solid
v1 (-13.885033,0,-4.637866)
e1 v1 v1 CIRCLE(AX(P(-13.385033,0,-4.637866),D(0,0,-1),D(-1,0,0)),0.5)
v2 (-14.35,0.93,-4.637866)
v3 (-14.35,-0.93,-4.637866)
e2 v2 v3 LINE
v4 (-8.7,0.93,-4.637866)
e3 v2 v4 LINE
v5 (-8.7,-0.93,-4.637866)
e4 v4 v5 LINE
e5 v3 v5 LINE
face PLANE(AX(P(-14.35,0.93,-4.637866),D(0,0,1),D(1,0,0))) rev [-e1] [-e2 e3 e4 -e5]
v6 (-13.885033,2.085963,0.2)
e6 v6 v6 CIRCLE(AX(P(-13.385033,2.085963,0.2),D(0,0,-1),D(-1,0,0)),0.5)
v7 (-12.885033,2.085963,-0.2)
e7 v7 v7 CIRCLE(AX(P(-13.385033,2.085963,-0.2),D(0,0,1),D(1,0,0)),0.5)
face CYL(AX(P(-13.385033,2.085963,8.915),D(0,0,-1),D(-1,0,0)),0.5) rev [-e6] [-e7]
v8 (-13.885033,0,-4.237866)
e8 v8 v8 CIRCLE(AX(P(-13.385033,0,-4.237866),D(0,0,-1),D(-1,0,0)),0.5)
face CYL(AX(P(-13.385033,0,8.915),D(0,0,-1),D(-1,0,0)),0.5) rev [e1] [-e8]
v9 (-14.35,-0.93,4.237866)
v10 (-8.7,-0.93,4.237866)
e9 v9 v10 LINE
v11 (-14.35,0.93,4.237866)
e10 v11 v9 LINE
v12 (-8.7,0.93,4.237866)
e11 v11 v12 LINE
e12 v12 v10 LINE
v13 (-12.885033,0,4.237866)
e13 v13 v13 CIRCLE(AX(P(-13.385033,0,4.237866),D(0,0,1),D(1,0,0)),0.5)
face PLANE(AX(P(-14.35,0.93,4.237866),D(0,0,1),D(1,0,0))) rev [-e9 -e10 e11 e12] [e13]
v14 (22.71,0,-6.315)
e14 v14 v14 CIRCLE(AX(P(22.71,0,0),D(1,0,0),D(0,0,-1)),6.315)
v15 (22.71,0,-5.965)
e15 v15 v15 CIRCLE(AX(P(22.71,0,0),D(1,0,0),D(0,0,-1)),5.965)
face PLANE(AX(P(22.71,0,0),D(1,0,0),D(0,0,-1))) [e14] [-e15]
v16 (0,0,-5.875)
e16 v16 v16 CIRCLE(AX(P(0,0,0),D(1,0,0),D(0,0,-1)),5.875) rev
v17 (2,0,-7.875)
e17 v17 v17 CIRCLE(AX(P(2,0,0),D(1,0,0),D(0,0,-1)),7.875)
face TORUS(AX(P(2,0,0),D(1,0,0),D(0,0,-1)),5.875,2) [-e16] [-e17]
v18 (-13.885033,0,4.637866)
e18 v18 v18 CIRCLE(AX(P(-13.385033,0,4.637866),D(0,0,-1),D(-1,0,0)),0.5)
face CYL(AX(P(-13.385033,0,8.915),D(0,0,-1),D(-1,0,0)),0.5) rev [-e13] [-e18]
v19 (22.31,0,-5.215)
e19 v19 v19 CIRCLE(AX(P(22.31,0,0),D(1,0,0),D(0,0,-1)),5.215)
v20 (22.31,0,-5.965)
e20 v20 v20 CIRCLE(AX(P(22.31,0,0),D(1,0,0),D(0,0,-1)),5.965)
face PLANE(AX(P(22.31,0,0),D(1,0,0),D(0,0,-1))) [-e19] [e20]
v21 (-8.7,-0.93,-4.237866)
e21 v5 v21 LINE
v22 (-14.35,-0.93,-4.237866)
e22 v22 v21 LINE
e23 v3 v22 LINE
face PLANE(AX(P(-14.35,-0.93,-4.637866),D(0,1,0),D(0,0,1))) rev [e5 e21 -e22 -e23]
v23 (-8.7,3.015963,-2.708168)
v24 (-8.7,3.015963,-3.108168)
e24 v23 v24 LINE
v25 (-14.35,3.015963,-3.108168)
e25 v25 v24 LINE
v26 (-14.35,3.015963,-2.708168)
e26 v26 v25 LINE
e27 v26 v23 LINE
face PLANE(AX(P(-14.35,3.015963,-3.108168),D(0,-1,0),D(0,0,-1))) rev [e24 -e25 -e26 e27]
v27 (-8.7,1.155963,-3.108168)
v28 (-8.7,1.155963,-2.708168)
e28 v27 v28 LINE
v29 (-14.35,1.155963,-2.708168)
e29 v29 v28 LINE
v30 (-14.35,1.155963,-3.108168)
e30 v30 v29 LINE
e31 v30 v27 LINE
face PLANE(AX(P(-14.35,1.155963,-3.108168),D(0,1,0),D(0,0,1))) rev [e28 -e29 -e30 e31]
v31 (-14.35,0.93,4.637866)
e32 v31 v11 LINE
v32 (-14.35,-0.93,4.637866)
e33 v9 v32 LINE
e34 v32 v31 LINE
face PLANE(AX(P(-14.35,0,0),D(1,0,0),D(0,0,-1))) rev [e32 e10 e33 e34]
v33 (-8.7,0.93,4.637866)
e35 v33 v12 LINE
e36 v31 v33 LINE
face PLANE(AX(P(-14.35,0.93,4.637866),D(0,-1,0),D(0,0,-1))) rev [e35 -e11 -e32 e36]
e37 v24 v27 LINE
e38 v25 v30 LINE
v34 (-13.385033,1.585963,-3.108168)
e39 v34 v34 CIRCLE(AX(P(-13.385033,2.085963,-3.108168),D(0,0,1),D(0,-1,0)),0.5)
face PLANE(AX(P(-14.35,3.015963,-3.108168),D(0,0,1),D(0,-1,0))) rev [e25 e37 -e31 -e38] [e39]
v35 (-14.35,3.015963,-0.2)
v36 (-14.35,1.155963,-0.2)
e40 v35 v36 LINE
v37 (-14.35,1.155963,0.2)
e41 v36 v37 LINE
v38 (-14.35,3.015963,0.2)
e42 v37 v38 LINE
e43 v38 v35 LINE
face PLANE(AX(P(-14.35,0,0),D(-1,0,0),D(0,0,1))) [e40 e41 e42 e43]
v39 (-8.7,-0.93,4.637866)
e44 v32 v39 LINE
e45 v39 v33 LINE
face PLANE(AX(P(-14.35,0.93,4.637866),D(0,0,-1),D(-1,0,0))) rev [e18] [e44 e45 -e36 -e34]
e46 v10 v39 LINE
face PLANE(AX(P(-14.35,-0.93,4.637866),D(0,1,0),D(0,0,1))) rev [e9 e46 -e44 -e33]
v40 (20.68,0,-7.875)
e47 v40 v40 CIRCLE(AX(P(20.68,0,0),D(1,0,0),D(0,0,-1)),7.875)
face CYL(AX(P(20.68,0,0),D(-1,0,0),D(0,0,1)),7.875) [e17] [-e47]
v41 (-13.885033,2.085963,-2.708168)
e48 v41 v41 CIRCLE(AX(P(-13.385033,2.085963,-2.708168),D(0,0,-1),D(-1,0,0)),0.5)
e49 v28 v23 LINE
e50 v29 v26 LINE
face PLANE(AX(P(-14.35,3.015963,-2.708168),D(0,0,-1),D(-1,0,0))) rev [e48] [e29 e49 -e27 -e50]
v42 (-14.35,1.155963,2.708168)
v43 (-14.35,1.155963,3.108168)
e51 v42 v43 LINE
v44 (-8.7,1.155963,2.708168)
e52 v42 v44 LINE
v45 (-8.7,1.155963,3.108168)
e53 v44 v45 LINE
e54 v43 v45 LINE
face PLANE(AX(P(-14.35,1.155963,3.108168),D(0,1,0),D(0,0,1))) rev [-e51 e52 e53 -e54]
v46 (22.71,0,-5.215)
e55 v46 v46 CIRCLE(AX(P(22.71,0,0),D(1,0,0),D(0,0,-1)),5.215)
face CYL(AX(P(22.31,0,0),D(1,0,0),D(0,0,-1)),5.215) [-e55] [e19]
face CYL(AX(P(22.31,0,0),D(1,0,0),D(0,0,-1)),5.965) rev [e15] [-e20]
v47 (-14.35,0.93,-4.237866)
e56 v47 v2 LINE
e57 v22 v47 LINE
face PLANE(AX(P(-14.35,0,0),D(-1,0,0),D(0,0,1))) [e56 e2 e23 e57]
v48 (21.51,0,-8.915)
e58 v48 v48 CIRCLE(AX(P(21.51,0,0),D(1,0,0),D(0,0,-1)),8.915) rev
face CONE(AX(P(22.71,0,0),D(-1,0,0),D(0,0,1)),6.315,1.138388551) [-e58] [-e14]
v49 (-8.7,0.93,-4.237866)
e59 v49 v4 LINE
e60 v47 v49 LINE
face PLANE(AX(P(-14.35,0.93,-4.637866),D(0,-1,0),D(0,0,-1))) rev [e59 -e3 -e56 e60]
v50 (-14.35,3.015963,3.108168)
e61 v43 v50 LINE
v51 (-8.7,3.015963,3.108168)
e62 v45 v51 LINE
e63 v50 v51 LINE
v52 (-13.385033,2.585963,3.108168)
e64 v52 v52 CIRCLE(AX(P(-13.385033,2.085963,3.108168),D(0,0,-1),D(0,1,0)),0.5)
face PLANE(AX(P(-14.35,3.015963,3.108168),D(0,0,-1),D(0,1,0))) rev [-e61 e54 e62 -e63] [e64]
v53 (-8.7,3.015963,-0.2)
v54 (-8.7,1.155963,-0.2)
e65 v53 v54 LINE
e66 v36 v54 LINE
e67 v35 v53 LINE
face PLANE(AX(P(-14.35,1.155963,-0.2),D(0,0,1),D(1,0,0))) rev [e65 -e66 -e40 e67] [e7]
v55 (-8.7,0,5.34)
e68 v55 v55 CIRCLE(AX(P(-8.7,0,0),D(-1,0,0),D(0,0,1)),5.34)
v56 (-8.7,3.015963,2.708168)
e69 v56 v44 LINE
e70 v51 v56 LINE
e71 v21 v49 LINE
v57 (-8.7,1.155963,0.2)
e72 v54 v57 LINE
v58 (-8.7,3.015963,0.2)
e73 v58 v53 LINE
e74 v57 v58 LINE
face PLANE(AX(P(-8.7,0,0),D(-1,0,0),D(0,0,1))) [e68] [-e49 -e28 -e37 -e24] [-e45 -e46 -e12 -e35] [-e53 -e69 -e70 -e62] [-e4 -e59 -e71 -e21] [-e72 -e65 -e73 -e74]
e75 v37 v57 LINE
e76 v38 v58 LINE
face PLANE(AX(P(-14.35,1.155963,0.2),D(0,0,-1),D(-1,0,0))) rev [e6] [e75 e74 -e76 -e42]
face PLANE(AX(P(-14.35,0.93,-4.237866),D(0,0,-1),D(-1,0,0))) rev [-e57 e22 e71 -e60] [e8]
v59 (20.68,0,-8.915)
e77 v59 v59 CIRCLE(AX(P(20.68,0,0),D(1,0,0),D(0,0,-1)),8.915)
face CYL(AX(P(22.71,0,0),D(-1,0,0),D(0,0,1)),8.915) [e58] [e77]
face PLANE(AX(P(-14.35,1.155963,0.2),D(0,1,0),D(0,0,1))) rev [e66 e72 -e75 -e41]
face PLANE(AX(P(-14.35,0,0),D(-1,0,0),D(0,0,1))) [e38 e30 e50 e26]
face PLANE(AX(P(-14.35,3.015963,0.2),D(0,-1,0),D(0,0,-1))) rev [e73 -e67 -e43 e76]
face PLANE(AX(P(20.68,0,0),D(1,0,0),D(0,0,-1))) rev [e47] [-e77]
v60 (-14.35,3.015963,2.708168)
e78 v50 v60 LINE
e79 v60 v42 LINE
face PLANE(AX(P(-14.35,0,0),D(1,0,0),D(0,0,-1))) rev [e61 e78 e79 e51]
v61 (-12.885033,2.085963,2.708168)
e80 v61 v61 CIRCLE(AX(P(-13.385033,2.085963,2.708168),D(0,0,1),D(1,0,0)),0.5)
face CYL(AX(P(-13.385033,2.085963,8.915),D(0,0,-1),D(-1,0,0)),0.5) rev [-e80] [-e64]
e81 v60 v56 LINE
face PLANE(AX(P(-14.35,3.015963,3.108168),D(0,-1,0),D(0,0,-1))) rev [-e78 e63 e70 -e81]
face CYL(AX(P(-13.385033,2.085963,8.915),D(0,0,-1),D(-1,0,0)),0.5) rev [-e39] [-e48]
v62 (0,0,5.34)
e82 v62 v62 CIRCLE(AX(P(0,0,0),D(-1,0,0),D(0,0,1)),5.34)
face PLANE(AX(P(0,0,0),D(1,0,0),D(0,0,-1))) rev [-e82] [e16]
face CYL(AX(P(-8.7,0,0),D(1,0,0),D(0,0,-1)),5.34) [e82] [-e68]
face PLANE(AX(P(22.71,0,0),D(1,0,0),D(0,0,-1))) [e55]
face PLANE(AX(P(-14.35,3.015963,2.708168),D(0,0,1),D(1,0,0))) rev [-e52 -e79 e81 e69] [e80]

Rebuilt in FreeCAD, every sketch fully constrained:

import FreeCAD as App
import Part
import Sketcher
from FreeCAD import Vector


def edges_at(feature, points):
    """Names of the edges that pass closest to the given points."""
    edges = feature.Shape.Edges
    near = lambda p: min(range(len(edges)), key=lambda i: edges[i].distToShape(Part.Vertex(*p))[0])
    return sorted({f"Edge{near(p) + 1}" for p in points})


def add_polygon(sketch, points):
    """Adds a closed chain of lines whose ends are joined by coincident constraints."""
    first, n = sketch.GeometryCount, len(points)
    for a, b in zip(points, points[1:] + points[:1]):
        sketch.addGeometry(Part.LineSegment(App.Vector(*a, 0), App.Vector(*b, 0)), False)
    for i in range(n):
        sketch.addConstraint(Sketcher.Constraint("Coincident", first + i, 2, first + (i + 1) % n, 1))

doc = App.newDocument("Part")
body = doc.addObject("PartDesign::Body", "Body")

# Sketch on YZ plane
sketch1 = doc.addObject("Sketcher::SketchObject", "Sketch")
body.addObject(sketch1)
sketch1.AttachmentSupport = (doc.YZ_Plane, [""])
sketch1.MapMode = "FlatFace"
sketch1.addGeometry(Part.Circle(Vector(0, 0, 0), Vector(0, 0, 1), 7.875), False)
sketch1.addConstraint(Sketcher.Constraint("Coincident", 0, 3, -1, 1))
sketch1.addConstraint(Sketcher.Constraint("Diameter", 0, 15.75))
pad1 = doc.addObject("PartDesign::Pad", "Pad")
body.addObject(pad1)
pad1.Profile = sketch1
pad1.Length = 20.68

# Sketch on YZ plane
sketch2 = doc.addObject("Sketcher::SketchObject", "Sketch001")
body.addObject(sketch2)
sketch2.AttachmentSupport = (doc.YZ_Plane, [""])
sketch2.MapMode = "FlatFace"
sketch2.AttachmentOffset = App.Placement(Vector(0, 0, 20.68), App.Rotation())
sketch2.addGeometry(Part.Circle(Vector(0, 0, 0), Vector(0, 0, 1), 8.915), False)
sketch2.addConstraint(Sketcher.Constraint("Coincident", 0, 3, -1, 1))
sketch2.addConstraint(Sketcher.Constraint("Diameter", 0, 17.83))
pad2 = doc.addObject("PartDesign::Pad", "Pad001")
body.addObject(pad2)
pad2.Profile = sketch2
pad2.Length = 2.03

# Sketch on YZ plane
sketch3 = doc.addObject("Sketcher::SketchObject", "Sketch002")
body.addObject(sketch3)
sketch3.AttachmentSupport = (doc.YZ_Plane, [""])
sketch3.MapMode = "FlatFace"
sketch3.AttachmentOffset = App.Placement(Vector(0, 0, 22.71), App.Rotation())
sketch3.addGeometry(Part.Circle(Vector(0, 0, 0), Vector(0, 0, 1), 5.965), False)
sketch3.addGeometry(Part.Circle(Vector(0, 0, 0), Vector(0, 0, 1), 5.215), False)
sketch3.addConstraint(Sketcher.Constraint("Coincident", 0, 3, -1, 1))
sketch3.addConstraint(Sketcher.Constraint("Coincident", 1, 3, -1, 1))
sketch3.addConstraint(Sketcher.Constraint("Diameter", 0, 11.93))
sketch3.addConstraint(Sketcher.Constraint("Diameter", 1, 10.43))
pocket1 = doc.addObject("PartDesign::Pocket", "Pocket")
body.addObject(pocket1)
pocket1.Profile = sketch3
pocket1.Length = 0.4
doc.recompute()

chamfer = doc.addObject("PartDesign::Chamfer", "Chamfer")
body.addObject(chamfer)
chamfer.Base = (pocket1, edges_at(pocket1, [(22.71, 0, 8.915)]))
chamfer.ChamferType = "Two distances"
chamfer.Size = 1.2
chamfer.Size2 = 2.6

# Sketch on YZ plane
sketch4 = doc.addObject("Sketcher::SketchObject", "Sketch003")
body.addObject(sketch4)
sketch4.AttachmentSupport = (doc.YZ_Plane, [""])
sketch4.MapMode = "FlatFace"
sketch4.addGeometry(Part.Circle(Vector(0, 0, 0), Vector(0, 0, 1), 5.34), False)
sketch4.addConstraint(Sketcher.Constraint("Coincident", 0, 3, -1, 1))
sketch4.addConstraint(Sketcher.Constraint("Diameter", 0, 10.68))
pad3 = doc.addObject("PartDesign::Pad", "Pad002")
body.addObject(pad3)
pad3.Profile = sketch4
pad3.Length = 8.7
pad3.Reversed = True

# Sketch on YZ plane
sketch5 = doc.addObject("Sketcher::SketchObject", "Sketch004")
body.addObject(sketch5)
sketch5.AttachmentSupport = (doc.YZ_Plane, [""])
sketch5.MapMode = "FlatFace"
sketch5.AttachmentOffset = App.Placement(Vector(0, 0, -8.7), App.Rotation())
add_polygon(sketch5, [(3.015963, -3.108168), (1.155963, -3.108168), (1.155963, -2.708168), (3.015963, -2.708168)])  # lines 0-3
add_polygon(sketch5, [(3.015963, -0.2), (1.155963, -0.2), (1.155963, 0.2), (3.015963, 0.2)])  # lines 4-7
add_polygon(sketch5, [(3.015963, 2.708168), (1.155963, 2.708168), (1.155963, 3.108168), (3.015963, 3.108168)])  # lines 8-11
add_polygon(sketch5, [(0.93, 4.237866), (-0.93, 4.237866), (-0.93, 4.637866), (0.93, 4.637866)])  # lines 12-15
add_polygon(sketch5, [(0.93, -4.637866), (-0.93, -4.637866), (-0.93, -4.237866), (0.93, -4.237866)])  # lines 16-19
sketch5.addConstraint(Sketcher.Constraint("Horizontal", 0))
sketch5.addConstraint(Sketcher.Constraint("Vertical", 1))
sketch5.addConstraint(Sketcher.Constraint("Horizontal", 2))
sketch5.addConstraint(Sketcher.Constraint("Vertical", 3))
sketch5.addConstraint(Sketcher.Constraint("Horizontal", 4))
sketch5.addConstraint(Sketcher.Constraint("Vertical", 5))
sketch5.addConstraint(Sketcher.Constraint("Horizontal", 6))
sketch5.addConstraint(Sketcher.Constraint("Vertical", 7))
sketch5.addConstraint(Sketcher.Constraint("Horizontal", 8))
sketch5.addConstraint(Sketcher.Constraint("Vertical", 9))
sketch5.addConstraint(Sketcher.Constraint("Horizontal", 10))
sketch5.addConstraint(Sketcher.Constraint("Vertical", 11))
sketch5.addConstraint(Sketcher.Constraint("Horizontal", 12))
sketch5.addConstraint(Sketcher.Constraint("Vertical", 13))
sketch5.addConstraint(Sketcher.Constraint("Horizontal", 14))
sketch5.addConstraint(Sketcher.Constraint("Vertical", 15))
sketch5.addConstraint(Sketcher.Constraint("Horizontal", 16))
sketch5.addConstraint(Sketcher.Constraint("Vertical", 17))
sketch5.addConstraint(Sketcher.Constraint("Horizontal", 18))
sketch5.addConstraint(Sketcher.Constraint("Vertical", 19))
sketch5.addConstraint(Sketcher.Constraint("Symmetric", 14, 2, 16, 2, -1, 1))
sketch5.addConstraint(Sketcher.Constraint("Symmetric", 12, 2, 18, 2, -1, 1))
sketch5.addConstraint(Sketcher.Constraint("Symmetric", 1, 2, 8, 2, -1))
sketch5.addConstraint(Sketcher.Constraint("Symmetric", 3, 2, 10, 2, -1))
sketch5.addConstraint(Sketcher.Constraint("Vertical", 1, 2, 4, 2))
sketch5.addConstraint(Sketcher.Constraint("Vertical", 3, 2, 6, 2))
sketch5.addConstraint(Sketcher.Constraint("Vertical", 13, 2, 16, 2))
sketch5.addConstraint(Sketcher.Constraint("Equal", 10, 12))
sketch5.addConstraint(Sketcher.Constraint("Equal", 3, 5))
sketch5.addConstraint(Sketcher.Constraint("Equal", 11, 13))
sketch5.addConstraint(Sketcher.Constraint("DistanceY", 1, 1, 1, 2, 0.4))
sketch5.addConstraint(Sketcher.Constraint("DistanceX", 0, 2, 0, 1, 1.86))
sketch5.addConstraint(Sketcher.Constraint("DistanceY", 4, 2, -1, 1, 0.2))
sketch5.addConstraint(Sketcher.Constraint("DistanceY", 0, 2, -1, 1, 3.108168))
sketch5.addConstraint(Sketcher.Constraint("DistanceX", -1, 1, 0, 2, 1.155963))
sketch5.addConstraint(Sketcher.Constraint("DistanceY", -1, 1, 12, 2, 4.237866))
pad4 = doc.addObject("PartDesign::Pad", "Pad003")
body.addObject(pad4)
pad4.Profile = sketch5
pad4.Length = 5.65
pad4.Reversed = True

# Sketch on XY plane
sketch6 = doc.addObject("Sketcher::SketchObject", "Sketch005")
body.addObject(sketch6)
sketch6.AttachmentSupport = (doc.XY_Plane, [""])
sketch6.MapMode = "FlatFace"
sketch6.AttachmentOffset = App.Placement(Vector(0, 0, -4.637866), App.Rotation())
sketch6.addGeometry(Part.Circle(Vector(-13.385033, 0, 0), Vector(0, 0, 1), 0.5), False)
sketch6.addGeometry(Part.Circle(Vector(-13.385033, 2.085963, 0), Vector(0, 0, 1), 0.5), False)
sketch6.addConstraint(Sketcher.Constraint("Equal", 0, 1))
sketch6.addConstraint(Sketcher.Constraint("PointOnObject", 0, 3, -1))
sketch6.addConstraint(Sketcher.Constraint("Vertical", 0, 3, 1, 3))
sketch6.addConstraint(Sketcher.Constraint("Diameter", 0, 1.0))
sketch6.addConstraint(Sketcher.Constraint("DistanceX", 0, 3, -1, 1, 13.385033))
sketch6.addConstraint(Sketcher.Constraint("DistanceY", -1, 1, 1, 3, 2.085963))
pocket2 = doc.addObject("PartDesign::Pocket", "Pocket001")
body.addObject(pocket2)
pocket2.Profile = sketch6
pocket2.Type = "ThroughAll"
pocket2.Reversed = True
doc.recompute()

fillet = doc.addObject("PartDesign::Fillet", "Fillet")
body.addObject(fillet)
fillet.Base = (pocket2, edges_at(pocket2, [(0, 0, 7.875)]))
fillet.Radius = 2

doc.recompute()
